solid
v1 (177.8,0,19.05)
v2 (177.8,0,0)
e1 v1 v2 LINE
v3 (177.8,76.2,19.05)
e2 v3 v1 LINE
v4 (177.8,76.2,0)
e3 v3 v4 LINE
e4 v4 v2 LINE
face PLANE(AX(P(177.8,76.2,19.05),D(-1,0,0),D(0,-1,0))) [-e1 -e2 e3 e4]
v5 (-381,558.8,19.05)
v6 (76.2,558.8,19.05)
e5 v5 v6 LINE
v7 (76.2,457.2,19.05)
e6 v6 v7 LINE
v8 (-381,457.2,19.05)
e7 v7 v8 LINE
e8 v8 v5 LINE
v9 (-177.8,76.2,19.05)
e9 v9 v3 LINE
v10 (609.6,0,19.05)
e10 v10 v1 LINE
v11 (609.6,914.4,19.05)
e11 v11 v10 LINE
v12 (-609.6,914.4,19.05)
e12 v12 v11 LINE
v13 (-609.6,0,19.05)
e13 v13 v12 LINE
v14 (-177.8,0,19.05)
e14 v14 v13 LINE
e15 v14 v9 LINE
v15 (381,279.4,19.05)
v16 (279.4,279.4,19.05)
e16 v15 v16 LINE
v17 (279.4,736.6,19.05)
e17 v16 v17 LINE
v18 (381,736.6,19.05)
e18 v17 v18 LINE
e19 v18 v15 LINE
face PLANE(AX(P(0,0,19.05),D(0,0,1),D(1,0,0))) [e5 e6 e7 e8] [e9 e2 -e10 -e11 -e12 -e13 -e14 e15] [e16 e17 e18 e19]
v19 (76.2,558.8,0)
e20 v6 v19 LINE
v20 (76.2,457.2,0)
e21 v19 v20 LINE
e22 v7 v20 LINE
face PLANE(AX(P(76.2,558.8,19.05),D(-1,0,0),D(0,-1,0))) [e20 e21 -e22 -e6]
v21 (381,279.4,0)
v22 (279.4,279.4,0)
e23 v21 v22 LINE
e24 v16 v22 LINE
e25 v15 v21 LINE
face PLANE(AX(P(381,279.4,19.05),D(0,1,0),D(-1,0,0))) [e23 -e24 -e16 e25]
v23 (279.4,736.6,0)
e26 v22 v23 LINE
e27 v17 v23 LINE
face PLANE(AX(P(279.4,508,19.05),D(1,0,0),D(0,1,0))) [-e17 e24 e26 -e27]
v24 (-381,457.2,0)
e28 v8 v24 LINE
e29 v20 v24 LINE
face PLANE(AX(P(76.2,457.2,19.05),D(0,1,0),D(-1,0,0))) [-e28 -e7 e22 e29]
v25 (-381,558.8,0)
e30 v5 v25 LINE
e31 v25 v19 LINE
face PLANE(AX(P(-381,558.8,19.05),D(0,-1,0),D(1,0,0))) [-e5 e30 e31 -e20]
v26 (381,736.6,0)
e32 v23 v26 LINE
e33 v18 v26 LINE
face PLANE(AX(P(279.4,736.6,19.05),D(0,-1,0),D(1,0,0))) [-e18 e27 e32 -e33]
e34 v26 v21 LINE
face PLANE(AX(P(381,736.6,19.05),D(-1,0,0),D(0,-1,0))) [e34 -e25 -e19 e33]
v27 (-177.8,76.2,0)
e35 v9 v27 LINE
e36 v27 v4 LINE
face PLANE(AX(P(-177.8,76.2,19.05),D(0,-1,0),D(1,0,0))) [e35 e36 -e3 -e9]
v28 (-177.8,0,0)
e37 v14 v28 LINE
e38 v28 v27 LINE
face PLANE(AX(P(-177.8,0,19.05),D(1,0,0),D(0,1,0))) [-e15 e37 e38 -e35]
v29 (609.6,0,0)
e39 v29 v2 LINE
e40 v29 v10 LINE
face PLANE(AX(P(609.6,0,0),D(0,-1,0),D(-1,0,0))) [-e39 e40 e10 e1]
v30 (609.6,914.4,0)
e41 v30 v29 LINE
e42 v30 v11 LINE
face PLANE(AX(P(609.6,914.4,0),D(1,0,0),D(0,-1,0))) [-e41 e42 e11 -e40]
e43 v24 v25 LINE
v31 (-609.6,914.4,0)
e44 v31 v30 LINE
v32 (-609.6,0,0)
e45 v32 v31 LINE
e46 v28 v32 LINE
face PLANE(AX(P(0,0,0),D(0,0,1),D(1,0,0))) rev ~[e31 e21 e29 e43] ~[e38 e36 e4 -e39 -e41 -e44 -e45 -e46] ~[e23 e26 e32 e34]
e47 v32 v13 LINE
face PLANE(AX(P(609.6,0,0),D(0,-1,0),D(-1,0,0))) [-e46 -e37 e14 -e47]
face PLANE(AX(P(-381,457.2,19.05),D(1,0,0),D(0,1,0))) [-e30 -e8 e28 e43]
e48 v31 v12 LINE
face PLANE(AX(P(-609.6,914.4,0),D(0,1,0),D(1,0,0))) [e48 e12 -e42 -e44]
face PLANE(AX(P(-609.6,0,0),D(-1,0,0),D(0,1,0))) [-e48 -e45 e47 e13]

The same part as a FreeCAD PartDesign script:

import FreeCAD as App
import Part
import Sketcher
Q = App.Units.Quantity

doc = App.newDocument("Part")
body = doc.addObject("PartDesign::Body", "Body")

# Sketch on XY plane
sketch1 = body.newObject("Sketcher::SketchObject", "Sketch")
sketch1.AttachmentSupport = (doc.getObject("XY_Plane"), [""])
sketch1.MapMode = "FlatFace"
sketch1.addGeometry([
    Part.LineSegment(App.Vector(609.6, 914.4, 0), App.Vector(-609.6, 914.4, 0)),
    Part.LineSegment(App.Vector(-609.6, 914.4, 0), App.Vector(-609.6, 0, 0)),
    Part.LineSegment(App.Vector(-609.6, 0, 0), App.Vector(609.6, 0, 0)),
    Part.LineSegment(App.Vector(609.6, 0, 0), App.Vector(609.6, 914.4, 0)),
], False)
sketch1.addConstraint([
    Sketcher.Constraint("Coincident", 0, 2, 1, 1),
    Sketcher.Constraint("Coincident", 1, 2, 2, 1),
    Sketcher.Constraint("Coincident", 2, 2, 3, 1),
    Sketcher.Constraint("Coincident", 3, 2, 0, 1),
    Sketcher.Constraint("Horizontal", 0),
    Sketcher.Constraint("Vertical", 1),
    Sketcher.Constraint("Horizontal", 2),
    Sketcher.Constraint("Vertical", 3),
    Sketcher.Constraint("Symmetric", 1, 2, 2, 2, -1, 1),
    Sketcher.Constraint("DistanceX", 0, 2, 0, 1, Q("48 in")),
    Sketcher.Constraint("DistanceY", 1, 2, 1, 1, Q("36 in")),
])
pad1 = body.newObject("PartDesign::Pad", "Pad")
pad1.Profile = sketch1
pad1.Length = Q("0.75 in")

# Sketch on XY plane
sketch2 = body.newObject("Sketcher::SketchObject", "Sketch001")
sketch2.AttachmentSupport = (doc.getObject("XY_Plane"), [""])
sketch2.MapMode = "FlatFace"
sketch2.AttachmentOffset = App.Placement(App.Vector(0, 0, 0.75 * 25.4), App.Rotation())
sketch2.addGeometry([
    Part.LineSegment(App.Vector(177.8, 76.2, 0), App.Vector(-177.8, 76.2, 0)),  # 0
    Part.LineSegment(App.Vector(-177.8, 76.2, 0), App.Vector(-177.8, 0, 0)),  # 1
    Part.LineSegment(App.Vector(-177.8, 0, 0), App.Vector(177.8, 0, 0)),  # 2
    Part.LineSegment(App.Vector(177.8, 0, 0), App.Vector(177.8, 76.2, 0)),  # 3
    Part.LineSegment(App.Vector(279.4, 736.6, 0), App.Vector(279.4, 279.4, 0)),  # 4
    Part.LineSegment(App.Vector(279.4, 279.4, 0), App.Vector(381, 279.4, 0)),  # 5
    Part.LineSegment(App.Vector(381, 279.4, 0), App.Vector(381, 736.6, 0)),  # 6
    Part.LineSegment(App.Vector(381, 736.6, 0), App.Vector(279.4, 736.6, 0)),  # 7
    Part.LineSegment(App.Vector(76.2, 558.8, 0), App.Vector(-381, 558.8, 0)),  # 8
    Part.LineSegment(App.Vector(-381, 558.8, 0), App.Vector(-381, 457.2, 0)),  # 9
    Part.LineSegment(App.Vector(-381, 457.2, 0), App.Vector(76.2, 457.2, 0)),  # 10
    Part.LineSegment(App.Vector(76.2, 457.2, 0), App.Vector(76.2, 558.8, 0)),  # 11
], False)
sketch2.addConstraint([
    Sketcher.Constraint("Coincident", 0, 2, 1, 1),
    Sketcher.Constraint("Coincident", 1, 2, 2, 1),
    Sketcher.Constraint("Coincident", 2, 2, 3, 1),
    Sketcher.Constraint("Coincident", 3, 2, 0, 1),
    Sketcher.Constraint("Coincident", 4, 2, 5, 1),
    Sketcher.Constraint("Coincident", 5, 2, 6, 1),
    Sketcher.Constraint("Coincident", 6, 2, 7, 1),
    Sketcher.Constraint("Coincident", 7, 2, 4, 1),
    Sketcher.Constraint("Coincident", 8, 2, 9, 1),
    Sketcher.Constraint("Coincident", 9, 2, 10, 1),
    Sketcher.Constraint("Coincident", 10, 2, 11, 1),
    Sketcher.Constraint("Coincident", 11, 2, 8, 1),
    Sketcher.Constraint("Horizontal", 0),
    Sketcher.Constraint("Vertical", 1),
    Sketcher.Constraint("Horizontal", 2),
    Sketcher.Constraint("Vertical", 3),
    Sketcher.Constraint("Vertical", 4),
    Sketcher.Constraint("Horizontal", 5),
    Sketcher.Constraint("Vertical", 6),
    Sketcher.Constraint("Horizontal", 7),
    Sketcher.Constraint("Horizontal", 8),
    Sketcher.Constraint("Vertical", 9),
    Sketcher.Constraint("Horizontal", 10),
    Sketcher.Constraint("Vertical", 11),
    Sketcher.Constraint("Symmetric", 1, 2, 2, 2, -1, 1),
    Sketcher.Constraint("Equal", 10, 4),
    Sketcher.Constraint("Equal", 7, 9),
    Sketcher.Constraint("DistanceX", 0, 2, 0, 1, Q("14 in")),
    Sketcher.Constraint("DistanceX", 5, 1, 5, 2, Q("4 in")),
    Sketcher.Constraint("DistanceX", 8, 2, 8, 1, Q("18 in")),
    Sketcher.Constraint("DistanceY", 1, 2, 1, 1, Q("3 in")),
    Sketcher.Constraint("DistanceX", -1, 1, 5, 2, Q("15 in")),
    Sketcher.Constraint("DistanceX", 8, 2, -1, 1, Q("15 in")),
    Sketcher.Constraint("DistanceY", -1, 1, 9, 2, Q("18 in")),
    Sketcher.Constraint("DistanceY", 3, 2, 4, 2, Q("8 in")),
])
pocket1 = body.newObject("PartDesign::Pocket", "Pocket")
pocket1.Profile = sketch2
pocket1.Type = "ThroughAll"

doc.recompute()
